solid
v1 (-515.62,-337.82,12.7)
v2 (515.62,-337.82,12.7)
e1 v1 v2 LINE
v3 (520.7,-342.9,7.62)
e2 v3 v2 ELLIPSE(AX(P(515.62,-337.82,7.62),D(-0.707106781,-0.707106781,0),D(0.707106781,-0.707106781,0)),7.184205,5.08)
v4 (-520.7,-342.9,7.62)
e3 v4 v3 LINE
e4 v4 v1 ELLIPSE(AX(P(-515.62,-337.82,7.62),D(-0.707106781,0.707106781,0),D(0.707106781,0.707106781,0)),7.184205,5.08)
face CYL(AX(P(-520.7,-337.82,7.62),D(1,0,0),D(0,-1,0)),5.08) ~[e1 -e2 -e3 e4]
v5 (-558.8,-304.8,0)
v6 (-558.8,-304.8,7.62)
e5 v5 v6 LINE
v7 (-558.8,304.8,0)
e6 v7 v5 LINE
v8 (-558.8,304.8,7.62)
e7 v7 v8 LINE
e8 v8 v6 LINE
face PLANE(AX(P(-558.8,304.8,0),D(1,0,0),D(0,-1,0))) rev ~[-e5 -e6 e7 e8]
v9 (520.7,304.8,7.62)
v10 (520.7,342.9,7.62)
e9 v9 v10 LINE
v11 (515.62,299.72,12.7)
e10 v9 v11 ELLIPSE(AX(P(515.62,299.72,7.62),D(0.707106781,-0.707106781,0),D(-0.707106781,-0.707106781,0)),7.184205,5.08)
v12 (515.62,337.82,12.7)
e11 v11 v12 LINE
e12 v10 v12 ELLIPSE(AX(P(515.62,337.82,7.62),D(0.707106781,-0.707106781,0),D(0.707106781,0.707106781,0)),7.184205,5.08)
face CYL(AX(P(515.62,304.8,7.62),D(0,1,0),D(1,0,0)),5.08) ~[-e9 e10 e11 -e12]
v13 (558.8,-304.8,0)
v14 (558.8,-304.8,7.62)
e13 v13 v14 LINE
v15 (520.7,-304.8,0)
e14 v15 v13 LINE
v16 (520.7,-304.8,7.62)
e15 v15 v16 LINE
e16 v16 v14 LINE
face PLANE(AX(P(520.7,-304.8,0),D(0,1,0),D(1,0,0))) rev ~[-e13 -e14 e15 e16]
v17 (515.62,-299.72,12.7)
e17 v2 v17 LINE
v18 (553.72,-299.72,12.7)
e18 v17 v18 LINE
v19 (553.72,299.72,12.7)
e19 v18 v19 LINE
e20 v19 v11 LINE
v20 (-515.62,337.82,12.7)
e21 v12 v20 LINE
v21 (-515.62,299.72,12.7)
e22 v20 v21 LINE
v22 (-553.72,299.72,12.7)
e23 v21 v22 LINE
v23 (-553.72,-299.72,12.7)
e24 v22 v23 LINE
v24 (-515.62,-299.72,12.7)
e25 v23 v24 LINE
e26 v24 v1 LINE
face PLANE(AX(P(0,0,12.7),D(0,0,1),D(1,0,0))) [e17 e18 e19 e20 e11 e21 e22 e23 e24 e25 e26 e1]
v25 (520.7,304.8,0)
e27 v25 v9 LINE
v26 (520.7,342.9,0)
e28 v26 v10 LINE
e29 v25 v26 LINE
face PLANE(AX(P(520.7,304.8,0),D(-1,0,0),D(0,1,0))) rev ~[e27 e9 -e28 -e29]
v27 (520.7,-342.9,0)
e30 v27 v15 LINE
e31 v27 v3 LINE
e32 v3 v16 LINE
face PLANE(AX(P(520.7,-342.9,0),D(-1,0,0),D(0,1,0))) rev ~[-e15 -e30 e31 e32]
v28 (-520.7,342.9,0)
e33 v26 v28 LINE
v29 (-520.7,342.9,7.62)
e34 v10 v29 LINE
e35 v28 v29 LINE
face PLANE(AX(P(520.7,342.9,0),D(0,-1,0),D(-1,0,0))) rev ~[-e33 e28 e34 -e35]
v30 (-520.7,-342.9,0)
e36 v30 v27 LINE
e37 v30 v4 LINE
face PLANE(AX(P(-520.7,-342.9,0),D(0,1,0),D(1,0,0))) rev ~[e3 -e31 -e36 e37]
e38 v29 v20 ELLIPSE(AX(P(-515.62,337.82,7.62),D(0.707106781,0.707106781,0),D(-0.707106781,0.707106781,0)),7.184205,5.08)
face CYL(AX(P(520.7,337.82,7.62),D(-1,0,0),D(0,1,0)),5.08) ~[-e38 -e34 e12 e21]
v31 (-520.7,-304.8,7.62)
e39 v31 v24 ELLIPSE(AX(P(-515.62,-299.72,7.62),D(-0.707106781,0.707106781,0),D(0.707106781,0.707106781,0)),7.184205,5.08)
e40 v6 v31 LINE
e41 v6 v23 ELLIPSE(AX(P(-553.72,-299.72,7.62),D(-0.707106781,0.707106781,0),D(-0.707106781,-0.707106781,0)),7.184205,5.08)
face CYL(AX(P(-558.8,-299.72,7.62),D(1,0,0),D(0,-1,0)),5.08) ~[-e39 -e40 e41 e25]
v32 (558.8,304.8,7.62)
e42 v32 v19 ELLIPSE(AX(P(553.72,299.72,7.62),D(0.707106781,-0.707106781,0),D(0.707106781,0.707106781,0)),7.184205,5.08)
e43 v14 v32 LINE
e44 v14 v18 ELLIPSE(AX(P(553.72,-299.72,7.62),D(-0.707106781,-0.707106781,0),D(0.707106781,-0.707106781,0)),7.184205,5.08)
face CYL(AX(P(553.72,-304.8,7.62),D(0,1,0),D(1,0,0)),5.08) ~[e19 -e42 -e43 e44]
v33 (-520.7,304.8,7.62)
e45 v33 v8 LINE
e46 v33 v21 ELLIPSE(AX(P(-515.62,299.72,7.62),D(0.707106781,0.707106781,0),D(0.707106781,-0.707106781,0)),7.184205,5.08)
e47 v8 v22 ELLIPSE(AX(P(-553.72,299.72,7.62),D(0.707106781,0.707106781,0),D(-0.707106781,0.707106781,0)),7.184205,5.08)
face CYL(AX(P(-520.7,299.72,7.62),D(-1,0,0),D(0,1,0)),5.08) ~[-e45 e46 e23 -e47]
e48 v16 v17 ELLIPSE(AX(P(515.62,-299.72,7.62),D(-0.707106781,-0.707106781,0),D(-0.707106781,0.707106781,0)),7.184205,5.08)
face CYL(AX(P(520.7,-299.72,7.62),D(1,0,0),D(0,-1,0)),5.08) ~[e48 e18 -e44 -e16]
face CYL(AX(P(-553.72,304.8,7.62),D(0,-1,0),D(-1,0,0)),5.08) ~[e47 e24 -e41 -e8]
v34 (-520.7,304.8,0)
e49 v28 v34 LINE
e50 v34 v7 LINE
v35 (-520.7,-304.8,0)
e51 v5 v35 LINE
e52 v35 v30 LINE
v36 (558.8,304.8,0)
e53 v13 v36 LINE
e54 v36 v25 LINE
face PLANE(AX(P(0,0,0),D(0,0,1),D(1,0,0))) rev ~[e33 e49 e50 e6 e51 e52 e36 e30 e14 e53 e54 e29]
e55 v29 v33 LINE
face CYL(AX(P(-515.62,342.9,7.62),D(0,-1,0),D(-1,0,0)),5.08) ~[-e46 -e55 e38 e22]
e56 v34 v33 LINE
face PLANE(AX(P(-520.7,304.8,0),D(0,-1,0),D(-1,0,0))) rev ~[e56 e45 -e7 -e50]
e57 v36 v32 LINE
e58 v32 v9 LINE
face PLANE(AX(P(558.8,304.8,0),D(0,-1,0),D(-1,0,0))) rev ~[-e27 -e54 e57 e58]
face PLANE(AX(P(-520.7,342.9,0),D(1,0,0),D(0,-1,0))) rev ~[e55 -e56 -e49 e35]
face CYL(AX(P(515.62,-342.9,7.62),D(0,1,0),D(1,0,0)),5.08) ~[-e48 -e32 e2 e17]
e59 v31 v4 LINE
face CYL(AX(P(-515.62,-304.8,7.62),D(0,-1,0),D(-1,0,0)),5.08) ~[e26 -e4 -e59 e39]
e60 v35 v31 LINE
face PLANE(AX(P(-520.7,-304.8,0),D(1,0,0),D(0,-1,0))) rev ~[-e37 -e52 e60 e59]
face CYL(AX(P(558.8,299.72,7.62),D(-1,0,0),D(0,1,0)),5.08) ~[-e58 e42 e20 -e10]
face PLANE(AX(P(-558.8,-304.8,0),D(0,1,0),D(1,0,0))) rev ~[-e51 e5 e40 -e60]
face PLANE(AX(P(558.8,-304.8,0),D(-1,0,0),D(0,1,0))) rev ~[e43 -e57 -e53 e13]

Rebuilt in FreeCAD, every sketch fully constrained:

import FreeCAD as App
import Part
import Sketcher
Q = App.Units.Quantity


def edges_at(feature, points):
    """Names of the edges that pass closest to the given points."""
    edges = feature.Shape.Edges
    near = lambda p: min(range(len(edges)), key=lambda i: edges[i].distToShape(Part.Vertex(*p))[0])
    return sorted({f"Edge{near(p) + 1}" for p in points})

doc = App.newDocument("Part")
params = doc.addObject("Spreadsheet::Sheet", "Params")
for row, (alias, value) in enumerate([
    ("sketch1_width", "41 in"),
    ("sketch1_height", "24 in"),
    ("sketch1_width2", "1.5 in"),
    ("pad1_length", "0.5 in"),
    ("fillet_radius", "0.2 in"),
], start=1):
    params.set(f"A{row}", alias)
    params.set(f"B{row}", "=" + value)
    params.setAlias(f"B{row}", alias)

body = doc.addObject("PartDesign::Body", "Body")

# Sketch on XY plane
sketch1 = body.newObject("Sketcher::SketchObject", "Sketch")
sketch1.AttachmentSupport = (doc.getObject("XY_Plane"), [""])
sketch1.MapMode = "FlatFace"
sketch1.addGeometry(Part.LineSegment(App.Vector(-521, -343, 0), App.Vector(521, -343, 0)), False)
sketch1.addGeometry(Part.LineSegment(App.Vector(521, -343, 0), App.Vector(521, -305, 0)), False)
sketch1.addGeometry(Part.LineSegment(App.Vector(521, -305, 0), App.Vector(559, -305, 0)), False)
sketch1.addGeometry(Part.LineSegment(App.Vector(559, -305, 0), App.Vector(559, 305, 0)), False)
sketch1.addGeometry(Part.LineSegment(App.Vector(559, 305, 0), App.Vector(521, 305, 0)), False)
sketch1.addGeometry(Part.LineSegment(App.Vector(521, 305, 0), App.Vector(521, 343, 0)), False)
sketch1.addGeometry(Part.LineSegment(App.Vector(521, 343, 0), App.Vector(-521, 343, 0)), False)
sketch1.addGeometry(Part.LineSegment(App.Vector(-521, 343, 0), App.Vector(-521, 305, 0)), False)
sketch1.addGeometry(Part.LineSegment(App.Vector(-521, 305, 0), App.Vector(-559, 305, 0)), False)
sketch1.addGeometry(Part.LineSegment(App.Vector(-559, 305, 0), App.Vector(-559, -305, 0)), False)
sketch1.addGeometry(Part.LineSegment(App.Vector(-559, -305, 0), App.Vector(-521, -305, 0)), False)
sketch1.addGeometry(Part.LineSegment(App.Vector(-521, -305, 0), App.Vector(-521, -343, 0)), False)
sketch1.addConstraint(Sketcher.Constraint("Coincident", 0, 2, 1, 1))
sketch1.addConstraint(Sketcher.Constraint("Coincident", 1, 2, 2, 1))
sketch1.addConstraint(Sketcher.Constraint("Coincident", 2, 2, 3, 1))
sketch1.addConstraint(Sketcher.Constraint("Coincident", 3, 2, 4, 1))
sketch1.addConstraint(Sketcher.Constraint("Coincident", 4, 2, 5, 1))
sketch1.addConstraint(Sketcher.Constraint("Coincident", 5, 2, 6, 1))
sketch1.addConstraint(Sketcher.Constraint("Coincident", 6, 2, 7, 1))
sketch1.addConstraint(Sketcher.Constraint("Coincident", 7, 2, 8, 1))
sketch1.addConstraint(Sketcher.Constraint("Coincident", 8, 2, 9, 1))
sketch1.addConstraint(Sketcher.Constraint("Coincident", 9, 2, 10, 1))
sketch1.addConstraint(Sketcher.Constraint("Coincident", 10, 2, 11, 1))
sketch1.addConstraint(Sketcher.Constraint("Coincident", 11, 2, 0, 1))
sketch1.addConstraint(Sketcher.Constraint("Horizontal", 0))
sketch1.addConstraint(Sketcher.Constraint("Vertical", 1))
sketch1.addConstraint(Sketcher.Constraint("Horizontal", 2))
sketch1.addConstraint(Sketcher.Constraint("Vertical", 3))
sketch1.addConstraint(Sketcher.Constraint("Horizontal", 4))
sketch1.addConstraint(Sketcher.Constraint("Vertical", 5))
sketch1.addConstraint(Sketcher.Constraint("Horizontal", 6))
sketch1.addConstraint(Sketcher.Constraint("Vertical", 7))
sketch1.addConstraint(Sketcher.Constraint("Horizontal", 8))
sketch1.addConstraint(Sketcher.Constraint("Vertical", 9))
sketch1.addConstraint(Sketcher.Constraint("Horizontal", 10))
sketch1.addConstraint(Sketcher.Constraint("Vertical", 11))
sketch1.addConstraint(Sketcher.Constraint("Symmetric", 0, 2, 6, 2, -1, 1))
sketch1.addConstraint(Sketcher.Constraint("Symmetric", 2, 2, 8, 2, -1, 1))
sketch1.addConstraint(Sketcher.Constraint("Symmetric", 4, 2, 10, 2, -1, 1))
sketch1.addConstraint(Sketcher.Constraint("Symmetric", 4, 2, 7, 2, -2))
sketch1.addConstraint(Sketcher.Constraint("Equal", 10, 1))
sketch1.addConstraint(Sketcher.Constraint("DistanceX", 0, 1, 0, 2, Q("41 in")))
sketch1.addConstraint(Sketcher.Constraint("DistanceY", 3, 1, 3, 2, Q("24 in")))
sketch1.addConstraint(Sketcher.Constraint("DistanceX", 2, 1, 2, 2, Q("1.5 in")))
sketch1.setExpression("Constraints[29]", "Params.sketch1_width")
sketch1.setExpression("Constraints[30]", "Params.sketch1_height")
sketch1.setExpression("Constraints[31]", "Params.sketch1_width2")
pad1 = body.newObject("PartDesign::Pad", "Pad")
pad1.Profile = sketch1
pad1.setExpression("Length", "Params.pad1_length")
doc.recompute()

fillet = body.newObject("PartDesign::Fillet", "Fillet")
fillet.Base = (pad1, edges_at(pad1, [
    (0, -342.9, 12.7),
    (520.7, -323.85, 12.7),
    (539.75, -304.8, 12.7),
    (558.8, 0, 12.7),
    (539.75, 304.8, 12.7),
    (520.7, 323.85, 12.7),
    (0, 342.9, 12.7),
    (-520.7, 323.85, 12.7),
    (-539.75, 304.8, 12.7),
    (-558.8, 0, 12.7),
    (-539.75, -304.8, 12.7),
    (-520.7, -323.85, 12.7),
]))
fillet.setExpression("Radius", "Params.fillet_radius")

doc.recompute()
